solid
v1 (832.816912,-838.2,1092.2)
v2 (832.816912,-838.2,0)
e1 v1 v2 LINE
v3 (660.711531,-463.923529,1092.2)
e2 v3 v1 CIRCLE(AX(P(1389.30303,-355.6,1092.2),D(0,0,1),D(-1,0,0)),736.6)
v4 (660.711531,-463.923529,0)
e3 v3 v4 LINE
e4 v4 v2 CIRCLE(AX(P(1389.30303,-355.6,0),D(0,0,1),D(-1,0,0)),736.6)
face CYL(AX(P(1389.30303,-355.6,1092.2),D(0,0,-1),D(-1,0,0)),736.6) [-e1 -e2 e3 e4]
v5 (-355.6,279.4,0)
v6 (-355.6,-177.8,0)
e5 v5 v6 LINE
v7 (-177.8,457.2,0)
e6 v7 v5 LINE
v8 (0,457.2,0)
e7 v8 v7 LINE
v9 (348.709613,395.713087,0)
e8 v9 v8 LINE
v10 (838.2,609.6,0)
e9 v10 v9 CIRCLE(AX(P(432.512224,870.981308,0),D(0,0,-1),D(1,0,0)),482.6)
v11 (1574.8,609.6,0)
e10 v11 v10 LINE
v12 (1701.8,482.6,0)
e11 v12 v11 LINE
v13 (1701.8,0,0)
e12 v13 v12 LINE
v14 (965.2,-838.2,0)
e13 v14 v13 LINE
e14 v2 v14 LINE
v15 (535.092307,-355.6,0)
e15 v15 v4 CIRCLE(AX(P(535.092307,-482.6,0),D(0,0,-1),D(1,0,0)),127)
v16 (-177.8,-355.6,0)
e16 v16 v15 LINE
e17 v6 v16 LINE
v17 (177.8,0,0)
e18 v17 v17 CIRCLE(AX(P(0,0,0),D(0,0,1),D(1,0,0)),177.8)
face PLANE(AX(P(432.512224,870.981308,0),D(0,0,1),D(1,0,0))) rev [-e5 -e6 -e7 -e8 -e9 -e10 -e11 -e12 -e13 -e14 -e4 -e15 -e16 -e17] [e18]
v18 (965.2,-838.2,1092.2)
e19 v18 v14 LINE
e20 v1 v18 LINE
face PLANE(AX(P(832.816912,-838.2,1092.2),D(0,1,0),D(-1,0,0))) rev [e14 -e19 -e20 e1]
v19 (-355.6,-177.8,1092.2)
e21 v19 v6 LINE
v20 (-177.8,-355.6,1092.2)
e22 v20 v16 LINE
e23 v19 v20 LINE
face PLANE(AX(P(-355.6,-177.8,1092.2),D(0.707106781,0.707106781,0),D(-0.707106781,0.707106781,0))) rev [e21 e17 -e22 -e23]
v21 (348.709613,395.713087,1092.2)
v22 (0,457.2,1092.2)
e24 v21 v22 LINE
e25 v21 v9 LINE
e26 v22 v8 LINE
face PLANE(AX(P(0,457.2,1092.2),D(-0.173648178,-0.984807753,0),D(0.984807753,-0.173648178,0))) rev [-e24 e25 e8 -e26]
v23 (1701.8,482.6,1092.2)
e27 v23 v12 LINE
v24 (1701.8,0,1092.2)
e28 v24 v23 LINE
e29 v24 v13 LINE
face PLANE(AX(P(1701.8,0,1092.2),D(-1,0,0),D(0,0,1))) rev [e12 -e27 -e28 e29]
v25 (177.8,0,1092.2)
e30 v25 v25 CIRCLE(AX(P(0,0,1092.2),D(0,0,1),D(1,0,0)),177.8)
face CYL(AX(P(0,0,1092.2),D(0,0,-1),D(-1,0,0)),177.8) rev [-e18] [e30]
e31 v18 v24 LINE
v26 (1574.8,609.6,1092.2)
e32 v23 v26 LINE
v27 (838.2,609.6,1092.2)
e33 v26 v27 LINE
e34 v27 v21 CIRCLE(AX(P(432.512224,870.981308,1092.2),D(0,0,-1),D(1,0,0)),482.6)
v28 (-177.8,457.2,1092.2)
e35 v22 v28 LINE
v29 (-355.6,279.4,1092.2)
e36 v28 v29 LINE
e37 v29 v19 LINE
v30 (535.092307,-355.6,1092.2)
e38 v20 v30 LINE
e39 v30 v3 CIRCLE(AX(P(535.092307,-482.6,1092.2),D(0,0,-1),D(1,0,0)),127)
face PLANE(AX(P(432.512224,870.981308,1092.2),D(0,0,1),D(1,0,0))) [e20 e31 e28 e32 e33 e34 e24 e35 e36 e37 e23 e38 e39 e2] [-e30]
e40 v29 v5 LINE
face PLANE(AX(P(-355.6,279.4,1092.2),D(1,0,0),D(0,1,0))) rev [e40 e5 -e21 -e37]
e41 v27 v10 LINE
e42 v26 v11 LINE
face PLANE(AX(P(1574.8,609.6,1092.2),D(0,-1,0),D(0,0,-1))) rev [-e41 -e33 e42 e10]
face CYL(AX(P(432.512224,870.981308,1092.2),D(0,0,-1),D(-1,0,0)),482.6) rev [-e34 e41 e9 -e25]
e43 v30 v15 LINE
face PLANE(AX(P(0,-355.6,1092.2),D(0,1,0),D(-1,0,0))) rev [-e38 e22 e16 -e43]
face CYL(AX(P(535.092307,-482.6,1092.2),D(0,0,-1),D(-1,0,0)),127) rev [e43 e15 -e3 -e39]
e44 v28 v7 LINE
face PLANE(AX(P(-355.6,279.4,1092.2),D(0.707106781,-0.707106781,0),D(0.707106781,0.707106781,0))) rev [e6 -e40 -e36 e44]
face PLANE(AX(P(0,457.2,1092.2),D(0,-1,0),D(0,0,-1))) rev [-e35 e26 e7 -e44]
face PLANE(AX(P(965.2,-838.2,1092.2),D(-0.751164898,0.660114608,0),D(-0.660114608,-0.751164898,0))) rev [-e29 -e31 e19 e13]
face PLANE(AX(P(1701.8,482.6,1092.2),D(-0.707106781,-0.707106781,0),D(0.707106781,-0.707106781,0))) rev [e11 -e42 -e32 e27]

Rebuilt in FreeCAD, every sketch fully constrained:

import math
import FreeCAD as App
import Part
import Sketcher

V = App.Vector
Q = App.Units.Quantity

doc = App.newDocument("Part")
params = doc.addObject("Spreadsheet::Sheet", "Params")
for row, (alias, value) in enumerate([
    ("sketch1_diameter", "14 in"),
    ("sketch1_radius", "5 in"),
    ("sketch1_radius2", "29 in"),
    ("sketch1_radius3", "19 in"),
    ("sketch1_width", "29 in"),
    ("pad1_length", "43 in"),
], start=1):
    params.set(f"A{row}", alias)
    params.set(f"B{row}", "=" + value)
    params.setAlias(f"B{row}", alias)

body = doc.addObject("PartDesign::Body", "Body")

sketch1 = body.newObject("Sketcher::SketchObject", "Sketch")
sketch1.AttachmentSupport = (doc.getObject("XY_Plane"), [""])
sketch1.MapMode = "FlatFace"
sketch1.addGeometry(Part.LineSegment(V(-355.6, 279.4, 0), V(-355.6, -177.8, 0)), False)
sketch1.addGeometry(Part.LineSegment(V(-355.6, -177.8, 0), V(-177.8, -355.6, 0)), False)
sketch1.addGeometry(Part.LineSegment(V(-177.8, -355.6, 0), V(535.092307, -355.6, 0)), False)
sketch1.addGeometry(Part.ArcOfCircle(Part.Circle(V(535.092307, -482.6, 0), V(0, 0, 1), 127), math.radians(8.456519), math.radians(90)), False)
sketch1.addGeometry(Part.ArcOfCircle(Part.Circle(V(1389.30303, -355.6, 0), V(0, 0, 1), 736.6), math.radians(-171.543481), math.radians(-139.067275)), False)
sketch1.addGeometry(Part.LineSegment(V(832.816912, -838.2, 0), V(965.2, -838.2, 0)), False)
sketch1.addGeometry(Part.LineSegment(V(965.2, -838.2, 0), V(1701.8, 0, 0)), False)
sketch1.addGeometry(Part.LineSegment(V(1701.8, 0, 0), V(1701.8, 482.6, 0)), False)
sketch1.addGeometry(Part.LineSegment(V(1701.8, 482.6, 0), V(1574.8, 609.6, 0)), False)
sketch1.addGeometry(Part.LineSegment(V(1574.8, 609.6, 0), V(838.2, 609.6, 0)), False)
sketch1.addGeometry(Part.ArcOfCircle(Part.Circle(V(432.512224, 870.981308, 0), V(0, 0, 1), 482.6), math.radians(-100), math.radians(-32.793351)), False)
sketch1.addGeometry(Part.LineSegment(V(348.709613, 395.713087, 0), V(0, 457.2, 0)), False)
sketch1.addGeometry(Part.LineSegment(V(0, 457.2, 0), V(-177.8, 457.2, 0)), False)
sketch1.addGeometry(Part.LineSegment(V(-177.8, 457.2, 0), V(-355.6, 279.4, 0)), False)
sketch1.addGeometry(Part.Circle(V(0, 0, 0), V(0, 0, 1), 177.8), False)
sketch1.addConstraint(Sketcher.Constraint("Coincident", 0, 2, 1, 1))
sketch1.addConstraint(Sketcher.Constraint("Coincident", 1, 2, 2, 1))
sketch1.addConstraint(Sketcher.Constraint("Tangent", 2, 2, 3, 2))
sketch1.addConstraint(Sketcher.Constraint("Tangent", 3, 1, 4, 1))
sketch1.addConstraint(Sketcher.Constraint("Coincident", 4, 2, 5, 1))
sketch1.addConstraint(Sketcher.Constraint("Coincident", 5, 2, 6, 1))
sketch1.addConstraint(Sketcher.Constraint("Coincident", 6, 2, 7, 1))
sketch1.addConstraint(Sketcher.Constraint("Coincident", 7, 2, 8, 1))
sketch1.addConstraint(Sketcher.Constraint("Coincident", 8, 2, 9, 1))
sketch1.addConstraint(Sketcher.Constraint("Coincident", 9, 2, 10, 2))
sketch1.addConstraint(Sketcher.Constraint("Tangent", 10, 1, 11, 1))
sketch1.addConstraint(Sketcher.Constraint("Coincident", 11, 2, 12, 1))
sketch1.addConstraint(Sketcher.Constraint("Coincident", 12, 2, 13, 1))
sketch1.addConstraint(Sketcher.Constraint("Coincident", 13, 2, 0, 1))
sketch1.addConstraint(Sketcher.Constraint("Vertical", 0))
sketch1.addConstraint(Sketcher.Constraint("Horizontal", 2))
sketch1.addConstraint(Sketcher.Constraint("Horizontal", 5))
sketch1.addConstraint(Sketcher.Constraint("Vertical", 7))
sketch1.addConstraint(Sketcher.Constraint("Horizontal", 9))
sketch1.addConstraint(Sketcher.Constraint("Horizontal", 12))
sketch1.addConstraint(Sketcher.Constraint("Coincident", 14, 3, -1, 1))
sketch1.addConstraint(Sketcher.Constraint("PointOnObject", 6, 2, -1))
sketch1.addConstraint(Sketcher.Constraint("PointOnObject", 11, 2, -2))
sketch1.addConstraint(Sketcher.Constraint("Parallel", 1, 8))
sketch1.addConstraint(Sketcher.Constraint("Perpendicular", 8, 13))
sketch1.addConstraint(Sketcher.Constraint("Horizontal", 4, 3, 1, 2))
sketch1.addConstraint(Sketcher.Constraint("Vertical", 1, 2, 12, 2))
sketch1.addConstraint(Sketcher.Constraint("Equal", 1, 13))
sketch1.addConstraint(Sketcher.Constraint("Diameter", 14, Q("14 in")))
sketch1.addConstraint(Sketcher.Constraint("Radius", 3, Q("5 in")))
sketch1.addConstraint(Sketcher.Constraint("Radius", 4, Q("29 in")))
sketch1.addConstraint(Sketcher.Constraint("Radius", 10, Q("19 in")))
sketch1.addConstraint(Sketcher.Constraint("DistanceX", 9, 2, 9, 1, Q("29 in")))
sketch1.addConstraint(Sketcher.Constraint("DistanceX", 12, 2, 12, 1, Q("7 in")))
sketch1.addConstraint(Sketcher.Constraint("DistanceY", 0, 2, 0, 1, Q("18 in")))
sketch1.addConstraint(Sketcher.Constraint("DistanceY", 7, 1, 7, 2, Q("19 in")))
sketch1.addConstraint(Sketcher.Constraint("DistanceY", 3, 3, -1, 1, Q("19 in")))
sketch1.addConstraint(Sketcher.Constraint("DistanceX", 0, 2, -1, 1, Q("14 in")))
sketch1.addConstraint(Sketcher.Constraint("DistanceX", -1, 1, 5, 2, Q("38 in")))
sketch1.addConstraint(Sketcher.Constraint("DistanceY", 5, 2, -1, 1, Q("33 in")))
sketch1.addConstraint(Sketcher.Constraint("DistanceX", -1, 1, 6, 2, Q("67 in")))
sketch1.addConstraint(Sketcher.Constraint("DistanceX", -1, 1, 8, 2, Q("62 in")))
sketch1.addConstraint(Sketcher.Constraint("Angle", 11, Q("170 deg")))
sketch1.addConstraint(Sketcher.Constraint("DistanceX", 5, 1, 5, 2, Q("132.383088 mm")))
sketch1.setExpression("Constraints[28]", "Params.sketch1_diameter")
sketch1.setExpression("Constraints[29]", "Params.sketch1_radius")
sketch1.setExpression("Constraints[30]", "Params.sketch1_radius2")
sketch1.setExpression("Constraints[31]", "Params.sketch1_radius3")
sketch1.setExpression("Constraints[32]", "Params.sketch1_width")
pad1 = body.newObject("PartDesign::Pad", "Pad")
pad1.Profile = sketch1
pad1.setExpression("Length", "Params.pad1_length")

doc.recompute()
